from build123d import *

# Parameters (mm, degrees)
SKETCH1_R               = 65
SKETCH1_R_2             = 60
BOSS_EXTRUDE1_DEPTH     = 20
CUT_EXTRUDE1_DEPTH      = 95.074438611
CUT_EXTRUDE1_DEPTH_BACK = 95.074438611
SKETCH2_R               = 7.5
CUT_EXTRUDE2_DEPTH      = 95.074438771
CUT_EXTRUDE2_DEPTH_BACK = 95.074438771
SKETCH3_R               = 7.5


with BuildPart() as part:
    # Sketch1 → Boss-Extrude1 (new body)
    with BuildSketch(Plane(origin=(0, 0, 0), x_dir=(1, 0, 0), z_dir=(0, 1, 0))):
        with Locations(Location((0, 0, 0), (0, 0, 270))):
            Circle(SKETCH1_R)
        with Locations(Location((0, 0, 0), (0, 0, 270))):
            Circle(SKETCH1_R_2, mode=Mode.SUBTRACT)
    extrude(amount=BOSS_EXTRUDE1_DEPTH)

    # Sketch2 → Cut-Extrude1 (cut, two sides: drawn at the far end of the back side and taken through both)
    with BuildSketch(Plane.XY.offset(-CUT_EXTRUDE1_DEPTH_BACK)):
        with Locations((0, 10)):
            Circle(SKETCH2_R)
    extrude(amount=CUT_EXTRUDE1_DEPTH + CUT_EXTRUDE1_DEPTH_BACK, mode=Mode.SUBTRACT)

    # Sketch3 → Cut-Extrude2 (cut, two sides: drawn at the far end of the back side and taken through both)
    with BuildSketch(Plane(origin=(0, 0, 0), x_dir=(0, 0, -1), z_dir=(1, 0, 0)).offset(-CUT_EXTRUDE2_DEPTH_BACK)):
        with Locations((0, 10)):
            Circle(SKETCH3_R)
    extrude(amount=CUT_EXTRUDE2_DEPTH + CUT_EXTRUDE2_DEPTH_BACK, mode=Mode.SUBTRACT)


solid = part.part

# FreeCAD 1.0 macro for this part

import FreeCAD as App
import Part
import Sketcher
from FreeCAD import Vector

doc = App.newDocument("Part")
params = doc.addObject("Spreadsheet::Sheet", "Params")
for row, (alias, value) in enumerate([
    ("sketch1_diameter", "130 mm"),
    ("sketch1_diameter2", "120 mm"),
    ("pad1_length", "20 mm"),
    ("sketch2_diameter", "15 mm"),
    ("sketch3_diameter", "15 mm"),
], start=1):
    params.set(f"A{row}", alias)
    params.set(f"B{row}", "=" + value)
    params.setAlias(f"B{row}", alias)

body = doc.addObject("PartDesign::Body", "Body")

# Sketch on XZ plane
sketch1 = body.newObject("Sketcher::SketchObject", "Sketch")
sketch1.AttachmentSupport = (doc.getObject("XZ_Plane"), [""])
sketch1.MapMode = "FlatFace"
sketch1.addGeometry(Part.Circle(Vector(0, 0, 0), Vector(0, 0, 1), 65), False)
sketch1.addGeometry(Part.Circle(Vector(0, 0, 0), Vector(0, 0, 1), 60), False)
sketch1.addConstraint(Sketcher.Constraint("Coincident", 0, 3, -1, 1))
sketch1.addConstraint(Sketcher.Constraint("Coincident", 1, 3, -1, 1))
sketch1.addConstraint(Sketcher.Constraint("Diameter", 0, 130.0))
sketch1.addConstraint(Sketcher.Constraint("Diameter", 1, 120.0))
sketch1.setExpression("Constraints[2]", "Params.sketch1_diameter")
sketch1.setExpression("Constraints[3]", "Params.sketch1_diameter2")
pad1 = body.newObject("PartDesign::Pad", "Pad")
pad1.Profile = sketch1
pad1.setExpression("Length", "Params.pad1_length")
pad1.Reversed = True

# Sketch on XY plane
sketch2 = body.newObject("Sketcher::SketchObject", "Sketch001")
sketch2.AttachmentSupport = (doc.getObject("XY_Plane"), [""])
sketch2.MapMode = "FlatFace"
sketch2.addGeometry(Part.Circle(Vector(0, 10, 0), Vector(0, 0, 1), 8), False)
sketch2.addConstraint(Sketcher.Constraint("PointOnObject", 0, 3, -2))
sketch2.addConstraint(Sketcher.Constraint("Diameter", 0, 15.0))
sketch2.addConstraint(Sketcher.Constraint("DistanceY", -1, 1, 0, 3, 10.0))
sketch2.setExpression("Constraints[1]", "Params.sketch2_diameter")
pocket1 = body.newObject("PartDesign::Pocket", "Pocket")
pocket1.Profile = sketch2
pocket1.Type = "ThroughAll"
pocket1.Midplane = True

# Sketch on YZ plane
sketch3 = body.newObject("Sketcher::SketchObject", "Sketch002")
sketch3.AttachmentSupport = (doc.getObject("YZ_Plane"), [""])
sketch3.MapMode = "FlatFace"
sketch3.addGeometry(Part.Circle(Vector(10, 0, 0), Vector(0, 0, 1), 8), False)
sketch3.addConstraint(Sketcher.Constraint("PointOnObject", 0, 3, -1))
sketch3.addConstraint(Sketcher.Constraint("Diameter", 0, 15.0))
sketch3.addConstraint(Sketcher.Constraint("DistanceX", -1, 1, 0, 3, 10.0))
sketch3.setExpression("Constraints[1]", "Params.sketch3_diameter")
pocket2 = body.newObject("PartDesign::Pocket", "Pocket001")
pocket2.Profile = sketch3
pocket2.Type = "ThroughAll"
pocket2.Midplane = True

doc.recompute()
